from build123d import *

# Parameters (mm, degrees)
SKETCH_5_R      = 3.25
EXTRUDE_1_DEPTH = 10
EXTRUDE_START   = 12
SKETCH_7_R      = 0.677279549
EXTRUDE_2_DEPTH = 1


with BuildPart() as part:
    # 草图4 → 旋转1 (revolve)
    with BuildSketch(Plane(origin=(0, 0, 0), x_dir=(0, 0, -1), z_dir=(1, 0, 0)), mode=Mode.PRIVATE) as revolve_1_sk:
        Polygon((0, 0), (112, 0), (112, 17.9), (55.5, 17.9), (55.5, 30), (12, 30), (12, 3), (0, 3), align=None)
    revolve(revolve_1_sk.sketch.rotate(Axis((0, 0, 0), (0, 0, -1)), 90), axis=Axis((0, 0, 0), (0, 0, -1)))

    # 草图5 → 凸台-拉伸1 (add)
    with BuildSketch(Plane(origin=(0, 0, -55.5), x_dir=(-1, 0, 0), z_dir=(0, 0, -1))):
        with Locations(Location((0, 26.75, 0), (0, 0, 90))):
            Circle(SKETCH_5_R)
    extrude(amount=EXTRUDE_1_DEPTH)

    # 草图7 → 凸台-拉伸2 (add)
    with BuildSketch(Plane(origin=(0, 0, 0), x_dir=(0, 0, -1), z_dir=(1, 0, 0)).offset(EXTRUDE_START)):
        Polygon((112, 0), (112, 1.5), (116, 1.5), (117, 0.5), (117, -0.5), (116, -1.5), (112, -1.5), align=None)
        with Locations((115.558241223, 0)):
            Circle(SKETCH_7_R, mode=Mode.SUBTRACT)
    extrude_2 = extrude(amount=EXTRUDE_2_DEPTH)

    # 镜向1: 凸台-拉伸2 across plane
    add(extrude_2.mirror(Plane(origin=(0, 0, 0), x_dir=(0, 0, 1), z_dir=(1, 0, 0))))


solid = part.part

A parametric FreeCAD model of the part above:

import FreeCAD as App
import Part
import Sketcher

doc = App.newDocument("Part")
body = doc.addObject("PartDesign::Body", "Body")

# Sketch on YZ plane
sketch1 = body.newObject("Sketcher::SketchObject", "Sketch")
sketch1.AttachmentSupport = (doc.getObject("YZ_Plane"), [""])
sketch1.MapMode = "FlatFace"
sketch1.addGeometry(Part.LineSegment(App.Vector(0, 0, 0), App.Vector(0, -112, 0)), False)
sketch1.addGeometry(Part.LineSegment(App.Vector(0, -112, 0), App.Vector(17.9, -112, 0)), False)
sketch1.addGeometry(Part.LineSegment(App.Vector(17.9, -112, 0), App.Vector(17.9, -55.5, 0)), False)
sketch1.addGeometry(Part.LineSegment(App.Vector(17.9, -55.5, 0), App.Vector(30, -55.5, 0)), False)
sketch1.addGeometry(Part.LineSegment(App.Vector(30, -55.5, 0), App.Vector(30, -12, 0)), False)
sketch1.addGeometry(Part.LineSegment(App.Vector(30, -12, 0), App.Vector(3, -12, 0)), False)
sketch1.addGeometry(Part.LineSegment(App.Vector(3, -12, 0), App.Vector(3, 0, 0)), False)
sketch1.addGeometry(Part.LineSegment(App.Vector(3, 0, 0), App.Vector(0, 0, 0)), False)
sketch1.addConstraint(Sketcher.Constraint("Coincident", 0, 2, 1, 1))
sketch1.addConstraint(Sketcher.Constraint("Coincident", 1, 2, 2, 1))
sketch1.addConstraint(Sketcher.Constraint("Coincident", 2, 2, 3, 1))
sketch1.addConstraint(Sketcher.Constraint("Coincident", 3, 2, 4, 1))
sketch1.addConstraint(Sketcher.Constraint("Coincident", 4, 2, 5, 1))
sketch1.addConstraint(Sketcher.Constraint("Coincident", 5, 2, 6, 1))
sketch1.addConstraint(Sketcher.Constraint("Coincident", 6, 2, 7, 1))
sketch1.addConstraint(Sketcher.Constraint("Coincident", 7, 2, 0, 1))
sketch1.addConstraint(Sketcher.Constraint("Vertical", 0))
sketch1.addConstraint(Sketcher.Constraint("Horizontal", 1))
sketch1.addConstraint(Sketcher.Constraint("Vertical", 2))
sketch1.addConstraint(Sketcher.Constraint("Horizontal", 3))
sketch1.addConstraint(Sketcher.Constraint("Vertical", 4))
sketch1.addConstraint(Sketcher.Constraint("Horizontal", 5))
sketch1.addConstraint(Sketcher.Constraint("Vertical", 6))
sketch1.addConstraint(Sketcher.Constraint("Horizontal", 7))
sketch1.addConstraint(Sketcher.Constraint("Coincident", 7, 2, -1, 1))
sketch1.addConstraint(Sketcher.Constraint("DistanceX", 5, 2, 5, 1, 27.0))
sketch1.addConstraint(Sketcher.Constraint("DistanceX", 7, 2, 7, 1, 3.0))
sketch1.addConstraint(Sketcher.Constraint("DistanceY", 0, 2, 0, 1, 112.0))
sketch1.addConstraint(Sketcher.Constraint("DistanceY", 6, 1, 6, 2, 12.0))
sketch1.addConstraint(Sketcher.Constraint("DistanceX", 1, 1, 1, 2, 17.9))
sketch1.addConstraint(Sketcher.Constraint("DistanceY", 2, 1, 2, 2, 56.5))
revolution = body.newObject("PartDesign::Revolution", "Revolution")
revolution.Profile = sketch1
revolution.ReferenceAxis = (sketch1, ["V_Axis"])
revolution.Angle = 360

# Sketch on XY plane
sketch2 = body.newObject("Sketcher::SketchObject", "Sketch001")
sketch2.AttachmentSupport = (doc.getObject("XY_Plane"), [""])
sketch2.MapMode = "FlatFace"
sketch2.AttachmentOffset = App.Placement(App.Vector(0, 0, -55.5), App.Rotation())
sketch2.addGeometry(Part.Circle(App.Vector(0, 26.8, 0), App.Vector(0, 0, 1), 3.2), False)
sketch2.addConstraint(Sketcher.Constraint("PointOnObject", 0, 3, -2))
sketch2.addConstraint(Sketcher.Constraint("Diameter", 0, 6.5))
sketch2.addConstraint(Sketcher.Constraint("DistanceY", -1, 1, 0, 3, 26.75))
pad1 = body.newObject("PartDesign::Pad", "Pad")
pad1.Profile = sketch2
pad1.Length = 10
pad1.Reversed = True

# Sketch on YZ plane
sketch3 = body.newObject("Sketcher::SketchObject", "Sketch002")
sketch3.AttachmentSupport = (doc.getObject("YZ_Plane"), [""])
sketch3.MapMode = "FlatFace"
sketch3.AttachmentOffset = App.Placement(App.Vector(0, 0, 12), App.Rotation())
sketch3.addGeometry(Part.LineSegment(App.Vector(1.5, -112, 0), App.Vector(-1.5, -112, 0)), False)
sketch3.addGeometry(Part.LineSegment(App.Vector(-1.5, -112, 0), App.Vector(-1.5, -116, 0)), False)
sketch3.addGeometry(Part.LineSegment(App.Vector(-1.5, -116, 0), App.Vector(-0.5, -117, 0)), False)
sketch3.addGeometry(Part.LineSegment(App.Vector(-0.5, -117, 0), App.Vector(0.5, -117, 0)), False)
sketch3.addGeometry(Part.LineSegment(App.Vector(0.5, -117, 0), App.Vector(1.5, -116, 0)), False)
sketch3.addGeometry(Part.LineSegment(App.Vector(1.5, -116, 0), App.Vector(1.5, -112, 0)), False)
sketch3.addGeometry(Part.Circle(App.Vector(0, -115.6, 0), App.Vector(0, 0, 1), 0.7), False)
sketch3.addConstraint(Sketcher.Constraint("Coincident", 0, 2, 1, 1))
sketch3.addConstraint(Sketcher.Constraint("Coincident", 1, 2, 2, 1))
sketch3.addConstraint(Sketcher.Constraint("Coincident", 2, 2, 3, 1))
sketch3.addConstraint(Sketcher.Constraint("Coincident", 3, 2, 4, 1))
sketch3.addConstraint(Sketcher.Constraint("Coincident", 4, 2, 5, 1))
sketch3.addConstraint(Sketcher.Constraint("Coincident", 5, 2, 0, 1))
sketch3.addConstraint(Sketcher.Constraint("Horizontal", 0))
sketch3.addConstraint(Sketcher.Constraint("Vertical", 1))
sketch3.addConstraint(Sketcher.Constraint("Horizontal", 3))
sketch3.addConstraint(Sketcher.Constraint("Vertical", 5))
sketch3.addConstraint(Sketcher.Constraint("Symmetric", 1, 2, 4, 2, -2))
sketch3.addConstraint(Sketcher.Constraint("PointOnObject", 6, 3, -2))
sketch3.addConstraint(Sketcher.Constraint("Perpendicular", 2, 4))
sketch3.addConstraint(Sketcher.Constraint("Equal", 2, 4))
sketch3.addConstraint(Sketcher.Constraint("DistanceX", 0, 2, 0, 1, 3.0))
sketch3.addConstraint(Sketcher.Constraint("DistanceX", 3, 1, 3, 2, 1.0))
sketch3.addConstraint(Sketcher.Constraint("DistanceY", 1, 2, 1, 1, 4.0))
sketch3.addConstraint(Sketcher.Constraint("DistanceY", 0, 2, -1, 1, 112.0))
sketch3.addConstraint(Sketcher.Constraint("Diameter", 6, 1.354559))
sketch3.addConstraint(Sketcher.Constraint("DistanceY", 6, 3, -1, 1, 115.558241))
pad2 = body.newObject("PartDesign::Pad", "Pad001")
pad2.Profile = sketch3
pad2.Length = 1
doc.recompute()

mirrored = body.newObject("PartDesign::Mirrored", "Mirrored")
mirrored.Originals = [pad2]
mirrored.MirrorPlane = (doc.getObject("YZ_Plane"), [""])
body.Tip = mirrored

doc.recompute()
